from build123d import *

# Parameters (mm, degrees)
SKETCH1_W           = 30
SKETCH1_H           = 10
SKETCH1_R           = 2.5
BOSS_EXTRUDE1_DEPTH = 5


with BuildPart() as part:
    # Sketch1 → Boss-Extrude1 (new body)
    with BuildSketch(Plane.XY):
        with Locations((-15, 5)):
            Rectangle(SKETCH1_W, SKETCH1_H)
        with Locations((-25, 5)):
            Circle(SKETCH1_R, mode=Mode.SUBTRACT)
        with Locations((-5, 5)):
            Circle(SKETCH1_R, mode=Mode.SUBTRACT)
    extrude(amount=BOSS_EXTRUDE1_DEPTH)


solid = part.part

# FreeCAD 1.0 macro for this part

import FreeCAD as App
import Part
import Sketcher


def add_polygon(sketch, points):
    """Adds a closed chain of lines whose ends are joined by coincident constraints."""
    first, n = sketch.GeometryCount, len(points)
    for a, b in zip(points, points[1:] + points[:1]):
        sketch.addGeometry(Part.LineSegment(App.Vector(*a, 0), App.Vector(*b, 0)), False)
    for i in range(n):
        sketch.addConstraint(Sketcher.Constraint("Coincident", first + i, 2, first + (i + 1) % n, 1))

doc = App.newDocument("Part")
body = doc.addObject("PartDesign::Body", "Body")

# Sketch on XY plane
sketch1 = doc.addObject("Sketcher::SketchObject", "Sketch")
body.addObject(sketch1)
sketch1.AttachmentSupport = (doc.XY_Plane, [""])
sketch1.MapMode = "FlatFace"
add_polygon(sketch1, [(-30, 10), (-30, 0), (0, 0), (0, 10)])  # lines 0-3
sketch1.addGeometry(Part.Circle(App.Vector(-25, 5, 0), App.Vector(0, 0, 1), 2.5), False)  # 4
sketch1.addGeometry(Part.Circle(App.Vector(-5, 5, 0), App.Vector(0, 0, 1), 2.5), False)  # 5
sketch1.addConstraint([
    Sketcher.Constraint("Vertical", 0),
    Sketcher.Constraint("Horizontal", 1),
    Sketcher.Constraint("Vertical", 2),
    Sketcher.Constraint("Horizontal", 3),
    Sketcher.Constraint("Coincident", 1, 2, -1, 1),
    Sketcher.Constraint("Equal", 4, 5),
    Sketcher.Constraint("Horizontal", 4, 3, 5, 3),
    Sketcher.Constraint("Diameter", 4, 5.0),
    Sketcher.Constraint("DistanceX", 1, 1, 1, 2, 30.0),
    Sketcher.Constraint("DistanceY", 0, 2, 0, 1, 10.0),
    Sketcher.Constraint("DistanceX", 4, 3, -1, 1, 25.0),
    Sketcher.Constraint("DistanceY", -1, 1, 4, 3, 5.0),
    Sketcher.Constraint("DistanceX", 5, 3, -1, 1, 5.0),
])
pad1 = doc.addObject("PartDesign::Pad", "Pad")
body.addObject(pad1)
pad1.Profile = sketch1
pad1.Length = 5

doc.recompute()
